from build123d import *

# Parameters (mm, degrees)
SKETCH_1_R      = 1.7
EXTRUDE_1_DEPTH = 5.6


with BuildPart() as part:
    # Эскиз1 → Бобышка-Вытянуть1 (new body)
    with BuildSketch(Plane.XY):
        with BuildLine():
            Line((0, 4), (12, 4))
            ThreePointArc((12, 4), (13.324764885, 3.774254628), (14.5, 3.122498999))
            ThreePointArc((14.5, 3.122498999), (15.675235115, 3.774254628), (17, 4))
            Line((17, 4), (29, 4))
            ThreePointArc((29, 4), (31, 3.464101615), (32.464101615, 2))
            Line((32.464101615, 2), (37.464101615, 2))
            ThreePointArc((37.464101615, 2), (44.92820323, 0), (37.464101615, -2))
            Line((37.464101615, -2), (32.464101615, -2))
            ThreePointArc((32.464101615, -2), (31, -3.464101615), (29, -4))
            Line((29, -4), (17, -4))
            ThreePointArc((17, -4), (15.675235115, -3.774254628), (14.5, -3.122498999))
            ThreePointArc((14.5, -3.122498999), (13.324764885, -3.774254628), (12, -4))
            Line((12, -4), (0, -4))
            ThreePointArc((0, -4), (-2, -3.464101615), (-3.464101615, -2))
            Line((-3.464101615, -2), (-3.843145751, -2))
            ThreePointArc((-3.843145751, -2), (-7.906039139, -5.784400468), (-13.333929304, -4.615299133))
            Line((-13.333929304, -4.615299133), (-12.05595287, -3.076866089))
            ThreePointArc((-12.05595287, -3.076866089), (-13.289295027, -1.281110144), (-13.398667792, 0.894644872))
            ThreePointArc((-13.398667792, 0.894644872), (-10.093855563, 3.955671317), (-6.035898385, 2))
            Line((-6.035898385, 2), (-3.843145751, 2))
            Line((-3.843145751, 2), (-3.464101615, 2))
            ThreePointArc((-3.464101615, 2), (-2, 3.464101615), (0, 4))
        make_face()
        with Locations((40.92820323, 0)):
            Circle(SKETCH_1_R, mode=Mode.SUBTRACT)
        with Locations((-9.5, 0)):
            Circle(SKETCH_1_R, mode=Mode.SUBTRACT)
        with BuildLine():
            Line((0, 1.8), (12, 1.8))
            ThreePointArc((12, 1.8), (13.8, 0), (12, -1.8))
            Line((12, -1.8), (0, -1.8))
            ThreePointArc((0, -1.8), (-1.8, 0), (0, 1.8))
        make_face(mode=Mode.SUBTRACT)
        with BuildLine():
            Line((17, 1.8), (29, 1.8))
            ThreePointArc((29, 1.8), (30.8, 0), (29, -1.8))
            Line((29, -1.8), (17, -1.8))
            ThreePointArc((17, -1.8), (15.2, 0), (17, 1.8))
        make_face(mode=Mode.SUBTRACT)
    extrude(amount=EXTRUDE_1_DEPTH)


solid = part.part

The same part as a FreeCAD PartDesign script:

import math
import FreeCAD as App
import Part
import Sketcher

V = App.Vector
Q = App.Units.Quantity

doc = App.newDocument("Part")
body = doc.addObject("PartDesign::Body", "Body")

# Sketch on XY plane
sketch1 = doc.addObject("Sketcher::SketchObject", "Sketch")
body.addObject(sketch1)
sketch1.AttachmentSupport = (doc.XY_Plane, [""])
sketch1.MapMode = "FlatFace"
sketch1.addGeometry(Part.LineSegment(V(12, 4, 0), V(0, 4, 0)), False)
sketch1.addGeometry(Part.ArcOfCircle(Part.Circle(V(0, 0, 0), V(0, 0, 1), 4), math.radians(90), math.radians(150)), False)
sketch1.addGeometry(Part.LineSegment(V(-3.46, 2, 0), V(-6.04, 2, 0)), False)
sketch1.addGeometry(Part.ArcOfCircle(Part.Circle(V(-9.5, 0, 0), V(0, 0, 1), 4), math.radians(30), math.radians(167)), False)
sketch1.addGeometry(Part.ArcOfCircle(Part.Circle(V(-9.5, 0, 0), V(0, 0, 1), 4), math.radians(167), math.radians(230)), False)
sketch1.addGeometry(Part.LineSegment(V(-12.06, -3.08, 0), V(-13.33, -4.62, 0)), False)
sketch1.addGeometry(Part.ArcOfCircle(Part.Circle(V(-9.5, 0, 0), V(0, 0, 1), 6), math.radians(-130), math.radians(-19)), False)
sketch1.addGeometry(Part.LineSegment(V(-3.84, -2, 0), V(-3.46, -2, 0)), False)
sketch1.addGeometry(Part.ArcOfCircle(Part.Circle(V(0, 0, 0), V(0, 0, 1), 4), math.radians(-150), math.radians(-90)), False)
sketch1.addGeometry(Part.LineSegment(V(0, -4, 0), V(12, -4, 0)), False)
sketch1.addGeometry(Part.ArcOfCircle(Part.Circle(V(12, 0, 0), V(0, 0, 1), 4), math.radians(-90), math.radians(-51)), False)
sketch1.addGeometry(Part.ArcOfCircle(Part.Circle(V(17, 0, 0), V(0, 0, 1), 4), math.radians(-129), math.radians(-90)), False)
sketch1.addGeometry(Part.LineSegment(V(17, -4, 0), V(29, -4, 0)), False)
sketch1.addGeometry(Part.ArcOfCircle(Part.Circle(V(29, 0, 0), V(0, 0, 1), 4), math.radians(-90), math.radians(-30)), False)
sketch1.addGeometry(Part.LineSegment(V(32.46, -2, 0), V(37.46, -2, 0)), False)
sketch1.addGeometry(Part.ArcOfCircle(Part.Circle(V(40.93, 0, 0), V(0, 0, 1), 4), math.radians(-150), math.radians(150)), False)
sketch1.addGeometry(Part.LineSegment(V(37.46, 2, 0), V(32.46, 2, 0)), False)
sketch1.addGeometry(Part.ArcOfCircle(Part.Circle(V(29, 0, 0), V(0, 0, 1), 4), math.radians(30), math.radians(90)), False)
sketch1.addGeometry(Part.LineSegment(V(29, 4, 0), V(17, 4, 0)), False)
sketch1.addGeometry(Part.ArcOfCircle(Part.Circle(V(17, 0, 0), V(0, 0, 1), 4), math.radians(90), math.radians(129)), False)
sketch1.addGeometry(Part.ArcOfCircle(Part.Circle(V(12, 0, 0), V(0, 0, 1), 4), math.radians(51), math.radians(90)), False)
sketch1.addGeometry(Part.Circle(V(40.93, 0, 0), V(0, 0, 1), 1.7), False)
sketch1.addGeometry(Part.LineSegment(V(17, 1.8, 0), V(29, 1.8, 0)), False)
sketch1.addGeometry(Part.ArcOfCircle(Part.Circle(V(29, 0, 0), V(0, 0, 1), 1.8), math.radians(-90), math.radians(90)), False)
sketch1.addGeometry(Part.LineSegment(V(29, -1.8, 0), V(17, -1.8, 0)), False)
sketch1.addGeometry(Part.ArcOfCircle(Part.Circle(V(17, 0, 0), V(0, 0, 1), 1.8), math.radians(90), math.radians(270)), False)
sketch1.addGeometry(Part.LineSegment(V(0, 1.8, 0), V(12, 1.8, 0)), False)
sketch1.addGeometry(Part.ArcOfCircle(Part.Circle(V(12, 0, 0), V(0, 0, 1), 1.8), math.radians(-90), math.radians(90)), False)
sketch1.addGeometry(Part.LineSegment(V(12, -1.8, 0), V(0, -1.8, 0)), False)
sketch1.addGeometry(Part.ArcOfCircle(Part.Circle(V(0, 0, 0), V(0, 0, 1), 1.8), math.radians(90), math.radians(270)), False)
sketch1.addGeometry(Part.Circle(V(-9.5, 0, 0), V(0, 0, 1), 1.7), False)
sketch1.addConstraint(Sketcher.Constraint("Tangent", 0, 2, 1, 1))
sketch1.addConstraint(Sketcher.Constraint("Coincident", 1, 2, 2, 1))
sketch1.addConstraint(Sketcher.Constraint("Coincident", 2, 2, 3, 1))
sketch1.addConstraint(Sketcher.Constraint("Tangent", 3, 2, 4, 1))
sketch1.addConstraint(Sketcher.Constraint("Coincident", 4, 2, 5, 1))
sketch1.addConstraint(Sketcher.Constraint("Coincident", 5, 2, 6, 1))
sketch1.addConstraint(Sketcher.Constraint("Coincident", 6, 2, 7, 1))
sketch1.addConstraint(Sketcher.Constraint("Coincident", 7, 2, 8, 1))
sketch1.addConstraint(Sketcher.Constraint("Tangent", 8, 2, 9, 1))
sketch1.addConstraint(Sketcher.Constraint("Tangent", 9, 2, 10, 1))
sketch1.addConstraint(Sketcher.Constraint("Coincident", 10, 2, 11, 1))
sketch1.addConstraint(Sketcher.Constraint("Tangent", 11, 2, 12, 1))
sketch1.addConstraint(Sketcher.Constraint("Tangent", 12, 2, 13, 1))
sketch1.addConstraint(Sketcher.Constraint("Coincident", 13, 2, 14, 1))
sketch1.addConstraint(Sketcher.Constraint("Coincident", 14, 2, 15, 1))
sketch1.addConstraint(Sketcher.Constraint("Coincident", 15, 2, 16, 1))
sketch1.addConstraint(Sketcher.Constraint("Coincident", 16, 2, 17, 1))
sketch1.addConstraint(Sketcher.Constraint("Tangent", 17, 2, 18, 1))
sketch1.addConstraint(Sketcher.Constraint("Tangent", 18, 2, 19, 1))
sketch1.addConstraint(Sketcher.Constraint("Coincident", 19, 2, 20, 1))
sketch1.addConstraint(Sketcher.Constraint("Tangent", 20, 2, 0, 1))
sketch1.addConstraint(Sketcher.Constraint("Tangent", 22, 2, 23, 2))
sketch1.addConstraint(Sketcher.Constraint("Tangent", 23, 1, 24, 1))
sketch1.addConstraint(Sketcher.Constraint("Tangent", 24, 2, 25, 2))
sketch1.addConstraint(Sketcher.Constraint("Tangent", 25, 1, 22, 1))
sketch1.addConstraint(Sketcher.Constraint("Tangent", 26, 2, 27, 2))
sketch1.addConstraint(Sketcher.Constraint("Tangent", 27, 1, 28, 1))
sketch1.addConstraint(Sketcher.Constraint("Tangent", 28, 2, 29, 2))
sketch1.addConstraint(Sketcher.Constraint("Tangent", 29, 1, 26, 1))
sketch1.addConstraint(Sketcher.Constraint("Horizontal", 0))
sketch1.addConstraint(Sketcher.Constraint("Horizontal", 2))
sketch1.addConstraint(Sketcher.Constraint("Horizontal", 7))
sketch1.addConstraint(Sketcher.Constraint("Horizontal", 9))
sketch1.addConstraint(Sketcher.Constraint("Horizontal", 12))
sketch1.addConstraint(Sketcher.Constraint("Horizontal", 14))
sketch1.addConstraint(Sketcher.Constraint("Horizontal", 16))
sketch1.addConstraint(Sketcher.Constraint("Horizontal", 18))
sketch1.addConstraint(Sketcher.Constraint("Horizontal", 22))
sketch1.addConstraint(Sketcher.Constraint("Horizontal", 24))
sketch1.addConstraint(Sketcher.Constraint("Horizontal", 26))
sketch1.addConstraint(Sketcher.Constraint("Horizontal", 28))
sketch1.addConstraint(Sketcher.Constraint("Coincident", 1, 3, -1, 1))
sketch1.addConstraint(Sketcher.Constraint("Coincident", 8, 3, -1, 1))
sketch1.addConstraint(Sketcher.Constraint("Coincident", 29, 3, -1, 1))
sketch1.addConstraint(Sketcher.Constraint("Coincident", 6, 3, 3, 3))
sketch1.addConstraint(Sketcher.Constraint("Coincident", 17, 3, 13, 3))
sketch1.addConstraint(Sketcher.Constraint("Coincident", 19, 3, 11, 3))
sketch1.addConstraint(Sketcher.Constraint("Coincident", 20, 3, 10, 3))
sketch1.addConstraint(Sketcher.Constraint("Coincident", 21, 3, 15, 3))
sketch1.addConstraint(Sketcher.Constraint("Coincident", 23, 3, 13, 3))
sketch1.addConstraint(Sketcher.Constraint("Coincident", 25, 3, 11, 3))
sketch1.addConstraint(Sketcher.Constraint("Coincident", 27, 3, 10, 3))
sketch1.addConstraint(Sketcher.Constraint("Coincident", 30, 3, 3, 3))
sketch1.addConstraint(Sketcher.Constraint("Equal", 1, 3))
sketch1.addConstraint(Sketcher.Constraint("Equal", 3, 4))
sketch1.addConstraint(Sketcher.Constraint("Equal", 4, 8))
sketch1.addConstraint(Sketcher.Constraint("Equal", 10, 11))
sketch1.addConstraint(Sketcher.Constraint("Equal", 13, 15))
sketch1.addConstraint(Sketcher.Constraint("Equal", 15, 17))
sketch1.addConstraint(Sketcher.Constraint("Equal", 25, 27))
sketch1.addConstraint(Sketcher.Constraint("Equal", 21, 30))
sketch1.addConstraint(Sketcher.Constraint("Symmetric", 14, 2, 15, 2, -1))
sketch1.addConstraint(Sketcher.Constraint("PointOnObject", 3, 3, -1))
sketch1.addConstraint(Sketcher.Constraint("PointOnObject", 11, 3, -1))
sketch1.addConstraint(Sketcher.Constraint("Horizontal", 7, 2, 13, 2))
sketch1.addConstraint(Sketcher.Constraint("Horizontal", 2, 2, 15, 2))
sketch1.addConstraint(Sketcher.Constraint("Equal", 9, 12))
sketch1.addConstraint(Sketcher.Constraint("Radius", 1, Q("4 mm")))
sketch1.addConstraint(Sketcher.Constraint("Radius", 6, Q("6 mm")))
sketch1.addConstraint(Sketcher.Constraint("Diameter", 21, Q("3.4 mm")))
sketch1.addConstraint(Sketcher.Constraint("Radius", 23, Q("1.8 mm")))
sketch1.addConstraint(Sketcher.Constraint("DistanceX", 0, 2, 0, 1, Q("12 mm")))
sketch1.addConstraint(Sketcher.Constraint("DistanceX", 14, 1, 14, 2, Q("5 mm")))
sketch1.addConstraint(Sketcher.Constraint("DistanceX", -1, 1, 11, 3, Q("17 mm")))
sketch1.addConstraint(Sketcher.Constraint("DistanceY", -1, 1, 1, 2, Q("2 mm")))
sketch1.addConstraint(Sketcher.Constraint("DistanceX", 3, 3, -1, 1, Q("9.5 mm")))
sketch1.addConstraint(Sketcher.Constraint("DistanceY", 5, 2, -1, 1, Q("4.615299 mm")))
sketch1.addConstraint(Sketcher.Constraint("DistanceX", 3, 2, 2, 2, Q("7.362769 mm")))
sketch1.addConstraint(Sketcher.Constraint("DistanceY", 4, 2, 3, 2, Q("3.971511 mm")))
pad1 = doc.addObject("PartDesign::Pad", "Pad")
body.addObject(pad1)
pad1.Profile = sketch1
pad1.Length = 5.6

doc.recompute()
